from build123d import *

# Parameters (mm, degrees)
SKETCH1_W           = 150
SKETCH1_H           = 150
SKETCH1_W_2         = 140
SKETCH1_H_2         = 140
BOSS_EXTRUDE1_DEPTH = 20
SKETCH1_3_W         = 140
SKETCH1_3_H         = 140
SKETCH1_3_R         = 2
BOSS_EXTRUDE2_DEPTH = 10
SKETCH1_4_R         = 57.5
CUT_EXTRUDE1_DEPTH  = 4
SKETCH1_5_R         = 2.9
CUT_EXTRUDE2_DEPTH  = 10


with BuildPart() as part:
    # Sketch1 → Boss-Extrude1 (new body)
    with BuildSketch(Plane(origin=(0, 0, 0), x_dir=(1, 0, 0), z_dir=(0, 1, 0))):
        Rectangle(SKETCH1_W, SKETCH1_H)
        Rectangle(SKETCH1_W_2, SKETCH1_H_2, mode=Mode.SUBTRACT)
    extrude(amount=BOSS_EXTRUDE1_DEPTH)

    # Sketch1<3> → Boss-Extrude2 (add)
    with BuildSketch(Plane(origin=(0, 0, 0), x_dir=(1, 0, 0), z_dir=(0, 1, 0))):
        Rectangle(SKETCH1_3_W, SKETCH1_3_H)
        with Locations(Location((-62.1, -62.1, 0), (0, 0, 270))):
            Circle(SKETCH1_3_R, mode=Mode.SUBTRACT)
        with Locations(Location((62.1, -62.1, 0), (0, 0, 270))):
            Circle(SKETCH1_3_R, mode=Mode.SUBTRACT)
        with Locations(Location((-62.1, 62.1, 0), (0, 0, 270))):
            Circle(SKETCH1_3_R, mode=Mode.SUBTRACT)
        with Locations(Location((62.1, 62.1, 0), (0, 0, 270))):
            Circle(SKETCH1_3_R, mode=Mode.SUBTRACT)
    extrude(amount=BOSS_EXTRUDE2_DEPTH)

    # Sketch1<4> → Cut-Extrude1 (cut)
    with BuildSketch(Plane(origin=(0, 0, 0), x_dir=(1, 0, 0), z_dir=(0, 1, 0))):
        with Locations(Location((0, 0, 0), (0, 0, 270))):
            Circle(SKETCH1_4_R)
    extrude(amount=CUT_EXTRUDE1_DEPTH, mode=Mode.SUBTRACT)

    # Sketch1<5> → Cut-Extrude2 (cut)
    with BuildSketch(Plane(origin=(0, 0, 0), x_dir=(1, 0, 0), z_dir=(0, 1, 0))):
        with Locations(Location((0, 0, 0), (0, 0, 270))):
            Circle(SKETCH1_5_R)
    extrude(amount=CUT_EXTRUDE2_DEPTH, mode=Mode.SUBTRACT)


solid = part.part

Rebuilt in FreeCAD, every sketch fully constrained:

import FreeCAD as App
import Part
import Sketcher
from FreeCAD import Vector


def add_polygon(sketch, points):
    """Adds a closed chain of lines whose ends are joined by coincident constraints."""
    first, n = sketch.GeometryCount, len(points)
    for a, b in zip(points, points[1:] + points[:1]):
        sketch.addGeometry(Part.LineSegment(App.Vector(*a, 0), App.Vector(*b, 0)), False)
    for i in range(n):
        sketch.addConstraint(Sketcher.Constraint("Coincident", first + i, 2, first + (i + 1) % n, 1))

doc = App.newDocument("Part")
params = doc.addObject("Spreadsheet::Sheet", "Params")
for row, (alias, value) in enumerate([
    ("sketch1_width", "150 mm"),
    ("sketch1_width2", "140 mm"),
    ("pad1_length", "20 mm"),
    ("sketch2_diameter", "4 mm"),
    ("sketch2_width", "140 mm"),
    ("pad2_length", "10 mm"),
    ("sketch3_diameter", "115 mm"),
    ("pocket1_length", "4 mm"),
    ("sketch4_diameter", "5.8 mm"),
    ("pocket2_length", "10 mm"),
], start=1):
    params.set(f"A{row}", alias)
    params.set(f"B{row}", "=" + value)
    params.setAlias(f"B{row}", alias)

body = doc.addObject("PartDesign::Body", "Body")

# Sketch on XZ plane
sketch1 = body.newObject("Sketcher::SketchObject", "Sketch")
sketch1.AttachmentSupport = (doc.getObject("XZ_Plane"), [""])
sketch1.MapMode = "FlatFace"
add_polygon(sketch1, [(-75, -75), (-75, 75), (75, 75), (75, -75)])  # lines 0-3
add_polygon(sketch1, [(70, 70), (-70, 70), (-70, -70), (70, -70)])  # lines 4-7
sketch1.addConstraint(Sketcher.Constraint("Vertical", 0))
sketch1.addConstraint(Sketcher.Constraint("Horizontal", 1))
sketch1.addConstraint(Sketcher.Constraint("Vertical", 2))
sketch1.addConstraint(Sketcher.Constraint("Horizontal", 3))
sketch1.addConstraint(Sketcher.Constraint("Horizontal", 4))
sketch1.addConstraint(Sketcher.Constraint("Vertical", 5))
sketch1.addConstraint(Sketcher.Constraint("Horizontal", 6))
sketch1.addConstraint(Sketcher.Constraint("Vertical", 7))
sketch1.addConstraint(Sketcher.Constraint("Symmetric", 0, 2, 2, 2, -1, 1))
sketch1.addConstraint(Sketcher.Constraint("Symmetric", 4, 2, 6, 2, -1, 1))
sketch1.addConstraint(Sketcher.Constraint("Equal", 3, 0))
sketch1.addConstraint(Sketcher.Constraint("Equal", 6, 5))
sketch1.addConstraint(Sketcher.Constraint("DistanceX", 1, 1, 1, 2, 150.0))
sketch1.addConstraint(Sketcher.Constraint("DistanceX", 4, 2, 4, 1, 140.0))
sketch1.setExpression("Constraints[20]", "Params.sketch1_width")
sketch1.setExpression("Constraints[21]", "Params.sketch1_width2")
pad1 = body.newObject("PartDesign::Pad", "Pad")
pad1.Profile = sketch1
pad1.setExpression("Length", "Params.pad1_length")
pad1.Reversed = True

# Sketch on XZ plane
sketch2 = body.newObject("Sketcher::SketchObject", "Sketch001")
sketch2.AttachmentSupport = (doc.getObject("XZ_Plane"), [""])
sketch2.MapMode = "FlatFace"
add_polygon(sketch2, [(-70, -70), (-70, 70), (70, 70), (70, -70)])  # lines 0-3
sketch2.addGeometry(Part.Circle(Vector(-62.1, 62.1, 0), Vector(0, 0, 1), 2), False)  # 4
sketch2.addGeometry(Part.Circle(Vector(62.1, 62.1, 0), Vector(0, 0, 1), 2), False)  # 5
sketch2.addGeometry(Part.Circle(Vector(-62.1, -62.1, 0), Vector(0, 0, 1), 2), False)  # 6
sketch2.addGeometry(Part.Circle(Vector(62.1, -62.1, 0), Vector(0, 0, 1), 2), False)  # 7
sketch2.addConstraint(Sketcher.Constraint("Vertical", 0))
sketch2.addConstraint(Sketcher.Constraint("Horizontal", 1))
sketch2.addConstraint(Sketcher.Constraint("Vertical", 2))
sketch2.addConstraint(Sketcher.Constraint("Horizontal", 3))
sketch2.addConstraint(Sketcher.Constraint("Equal", 4, 5))
sketch2.addConstraint(Sketcher.Constraint("Equal", 5, 6))
sketch2.addConstraint(Sketcher.Constraint("Equal", 6, 7))
sketch2.addConstraint(Sketcher.Constraint("Symmetric", 5, 3, 6, 3, -1, 1))
sketch2.addConstraint(Sketcher.Constraint("Symmetric", 4, 3, 7, 3, -1, 1))
sketch2.addConstraint(Sketcher.Constraint("Symmetric", 0, 2, 2, 2, -1, 1))
sketch2.addConstraint(Sketcher.Constraint("Symmetric", 4, 3, 5, 3, -2))
sketch2.addConstraint(Sketcher.Constraint("Equal", 3, 0))
sketch2.addConstraint(Sketcher.Constraint("Diameter", 4, 4.0))
sketch2.addConstraint(Sketcher.Constraint("DistanceX", 1, 1, 1, 2, 140.0))
sketch2.addConstraint(Sketcher.Constraint("DistanceX", 4, 3, -1, 1, 62.1))
sketch2.addConstraint(Sketcher.Constraint("DistanceY", -1, 1, 4, 3, 62.1))
sketch2.setExpression("Constraints[16]", "Params.sketch2_diameter")
sketch2.setExpression("Constraints[17]", "Params.sketch2_width")
pad2 = body.newObject("PartDesign::Pad", "Pad001")
pad2.Profile = sketch2
pad2.setExpression("Length", "Params.pad2_length")
pad2.Reversed = True

# Sketch on XZ plane
sketch3 = body.newObject("Sketcher::SketchObject", "Sketch002")
sketch3.AttachmentSupport = (doc.getObject("XZ_Plane"), [""])
sketch3.MapMode = "FlatFace"
sketch3.addGeometry(Part.Circle(Vector(0, 0, 0), Vector(0, 0, 1), 58), False)
sketch3.addConstraint(Sketcher.Constraint("Coincident", 0, 3, -1, 1))
sketch3.addConstraint(Sketcher.Constraint("Diameter", 0, 115.0))
sketch3.setExpression("Constraints[1]", "Params.sketch3_diameter")
pocket1 = body.newObject("PartDesign::Pocket", "Pocket")
pocket1.Profile = sketch3
pocket1.setExpression("Length", "Params.pocket1_length")

# Sketch on XZ plane
sketch4 = body.newObject("Sketcher::SketchObject", "Sketch003")
sketch4.AttachmentSupport = (doc.getObject("XZ_Plane"), [""])
sketch4.MapMode = "FlatFace"
sketch4.addGeometry(Part.Circle(Vector(0, 0, 0), Vector(0, 0, 1), 2.9), False)
sketch4.addConstraint(Sketcher.Constraint("Coincident", 0, 3, -1, 1))
sketch4.addConstraint(Sketcher.Constraint("Diameter", 0, 5.8))
sketch4.setExpression("Constraints[1]", "Params.sketch4_diameter")
pocket2 = body.newObject("PartDesign::Pocket", "Pocket001")
pocket2.Profile = sketch4
pocket2.setExpression("Length", "Params.pocket2_length")

doc.recompute()
